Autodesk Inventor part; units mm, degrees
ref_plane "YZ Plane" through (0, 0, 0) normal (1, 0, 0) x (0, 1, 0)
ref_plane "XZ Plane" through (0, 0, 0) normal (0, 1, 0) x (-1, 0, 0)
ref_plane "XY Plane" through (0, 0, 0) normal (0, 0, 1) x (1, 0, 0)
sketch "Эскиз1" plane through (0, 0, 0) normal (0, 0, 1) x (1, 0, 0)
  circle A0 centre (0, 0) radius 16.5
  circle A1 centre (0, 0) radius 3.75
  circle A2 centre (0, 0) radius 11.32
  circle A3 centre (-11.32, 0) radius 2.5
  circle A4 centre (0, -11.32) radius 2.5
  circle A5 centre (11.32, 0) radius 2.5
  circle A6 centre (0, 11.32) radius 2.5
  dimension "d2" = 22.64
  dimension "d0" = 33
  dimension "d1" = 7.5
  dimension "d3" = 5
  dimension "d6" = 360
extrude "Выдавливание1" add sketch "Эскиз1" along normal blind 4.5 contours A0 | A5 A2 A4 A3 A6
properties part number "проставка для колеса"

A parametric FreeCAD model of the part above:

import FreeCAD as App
import Part
import Sketcher
from FreeCAD import Vector

doc = App.newDocument("Part")
body = doc.addObject("PartDesign::Body", "Body")

# Sketch on XY plane
sketch1 = body.newObject("Sketcher::SketchObject", "Sketch")
sketch1.AttachmentSupport = (doc.getObject("XY_Plane"), [""])
sketch1.MapMode = "FlatFace"
sketch1.addGeometry(Part.Circle(Vector(0, 0, 0), Vector(0, 0, 1), 16.5), False)
sketch1.addGeometry(Part.Circle(Vector(0, 11.3, 0), Vector(0, 0, 1), 2.5), False)
sketch1.addGeometry(Part.Circle(Vector(-11.3, 0, 0), Vector(0, 0, 1), 2.5), False)
sketch1.addGeometry(Part.Circle(Vector(0, -11.3, 0), Vector(0, 0, 1), 2.5), False)
sketch1.addGeometry(Part.Circle(Vector(11.3, 0, 0), Vector(0, 0, 1), 2.5), False)
sketch1.addGeometry(Part.Circle(Vector(0, 0, 0), Vector(0, 0, 1), 3.8), False)
sketch1.addConstraint(Sketcher.Constraint("Coincident", 0, 3, -1, 1))
sketch1.addConstraint(Sketcher.Constraint("Coincident", 5, 3, -1, 1))
sketch1.addConstraint(Sketcher.Constraint("Equal", 1, 2))
sketch1.addConstraint(Sketcher.Constraint("Equal", 2, 3))
sketch1.addConstraint(Sketcher.Constraint("Equal", 3, 4))
sketch1.addConstraint(Sketcher.Constraint("Symmetric", 1, 3, 3, 3, -1, 1))
sketch1.addConstraint(Sketcher.Constraint("Symmetric", 2, 3, 4, 3, -1, 1))
sketch1.addConstraint(Sketcher.Constraint("PointOnObject", 1, 3, -2))
sketch1.addConstraint(Sketcher.Constraint("PointOnObject", 2, 3, -1))
sketch1.addConstraint(Sketcher.Constraint("Diameter", 0, 33.0))
sketch1.addConstraint(Sketcher.Constraint("Diameter", 1, 5.0))
sketch1.addConstraint(Sketcher.Constraint("Diameter", 5, 7.5))
sketch1.addConstraint(Sketcher.Constraint("DistanceY", 3, 3, 1, 3, 22.64))
sketch1.addConstraint(Sketcher.Constraint("DistanceX", 2, 3, 4, 3, 22.64))
pad1 = body.newObject("PartDesign::Pad", "Pad")
pad1.Profile = sketch1
pad1.Length = 4.5

doc.recompute()
